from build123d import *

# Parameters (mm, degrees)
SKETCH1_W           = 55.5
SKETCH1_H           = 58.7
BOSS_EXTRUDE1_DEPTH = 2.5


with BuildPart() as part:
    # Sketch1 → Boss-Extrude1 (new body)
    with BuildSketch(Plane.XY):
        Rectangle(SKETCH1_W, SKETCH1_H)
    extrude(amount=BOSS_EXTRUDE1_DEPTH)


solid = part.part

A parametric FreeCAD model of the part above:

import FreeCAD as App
import Part
import Sketcher

doc = App.newDocument("Part")
body = doc.addObject("PartDesign::Body", "Body")

sketch1 = body.newObject("Sketcher::SketchObject", "Sketch")
sketch1.AttachmentSupport = (doc.getObject("XY_Plane"), [""])
sketch1.MapMode = "FlatFace"
sketch1.addGeometry(Part.LineSegment(App.Vector(-28, 29, 0), App.Vector(-28, -29, 0)), False)
sketch1.addGeometry(Part.LineSegment(App.Vector(-28, -29, 0), App.Vector(28, -29, 0)), False)
sketch1.addGeometry(Part.LineSegment(App.Vector(28, -29, 0), App.Vector(28, 29, 0)), False)
sketch1.addGeometry(Part.LineSegment(App.Vector(28, 29, 0), App.Vector(-28, 29, 0)), False)
sketch1.addConstraint(Sketcher.Constraint("Coincident", 0, 2, 1, 1))
sketch1.addConstraint(Sketcher.Constraint("Coincident", 1, 2, 2, 1))
sketch1.addConstraint(Sketcher.Constraint("Coincident", 2, 2, 3, 1))
sketch1.addConstraint(Sketcher.Constraint("Coincident", 3, 2, 0, 1))
sketch1.addConstraint(Sketcher.Constraint("Vertical", 0))
sketch1.addConstraint(Sketcher.Constraint("Horizontal", 1))
sketch1.addConstraint(Sketcher.Constraint("Vertical", 2))
sketch1.addConstraint(Sketcher.Constraint("Horizontal", 3))
sketch1.addConstraint(Sketcher.Constraint("Symmetric", 0, 2, 2, 2, -1, 1))
sketch1.addConstraint(Sketcher.Constraint("DistanceX", 1, 1, 1, 2, 55.5))
sketch1.addConstraint(Sketcher.Constraint("DistanceY", 0, 2, 0, 1, 58.7))
pad1 = body.newObject("PartDesign::Pad", "Pad")
pad1.Profile = sketch1
pad1.Length = 2.5

doc.recompute()
